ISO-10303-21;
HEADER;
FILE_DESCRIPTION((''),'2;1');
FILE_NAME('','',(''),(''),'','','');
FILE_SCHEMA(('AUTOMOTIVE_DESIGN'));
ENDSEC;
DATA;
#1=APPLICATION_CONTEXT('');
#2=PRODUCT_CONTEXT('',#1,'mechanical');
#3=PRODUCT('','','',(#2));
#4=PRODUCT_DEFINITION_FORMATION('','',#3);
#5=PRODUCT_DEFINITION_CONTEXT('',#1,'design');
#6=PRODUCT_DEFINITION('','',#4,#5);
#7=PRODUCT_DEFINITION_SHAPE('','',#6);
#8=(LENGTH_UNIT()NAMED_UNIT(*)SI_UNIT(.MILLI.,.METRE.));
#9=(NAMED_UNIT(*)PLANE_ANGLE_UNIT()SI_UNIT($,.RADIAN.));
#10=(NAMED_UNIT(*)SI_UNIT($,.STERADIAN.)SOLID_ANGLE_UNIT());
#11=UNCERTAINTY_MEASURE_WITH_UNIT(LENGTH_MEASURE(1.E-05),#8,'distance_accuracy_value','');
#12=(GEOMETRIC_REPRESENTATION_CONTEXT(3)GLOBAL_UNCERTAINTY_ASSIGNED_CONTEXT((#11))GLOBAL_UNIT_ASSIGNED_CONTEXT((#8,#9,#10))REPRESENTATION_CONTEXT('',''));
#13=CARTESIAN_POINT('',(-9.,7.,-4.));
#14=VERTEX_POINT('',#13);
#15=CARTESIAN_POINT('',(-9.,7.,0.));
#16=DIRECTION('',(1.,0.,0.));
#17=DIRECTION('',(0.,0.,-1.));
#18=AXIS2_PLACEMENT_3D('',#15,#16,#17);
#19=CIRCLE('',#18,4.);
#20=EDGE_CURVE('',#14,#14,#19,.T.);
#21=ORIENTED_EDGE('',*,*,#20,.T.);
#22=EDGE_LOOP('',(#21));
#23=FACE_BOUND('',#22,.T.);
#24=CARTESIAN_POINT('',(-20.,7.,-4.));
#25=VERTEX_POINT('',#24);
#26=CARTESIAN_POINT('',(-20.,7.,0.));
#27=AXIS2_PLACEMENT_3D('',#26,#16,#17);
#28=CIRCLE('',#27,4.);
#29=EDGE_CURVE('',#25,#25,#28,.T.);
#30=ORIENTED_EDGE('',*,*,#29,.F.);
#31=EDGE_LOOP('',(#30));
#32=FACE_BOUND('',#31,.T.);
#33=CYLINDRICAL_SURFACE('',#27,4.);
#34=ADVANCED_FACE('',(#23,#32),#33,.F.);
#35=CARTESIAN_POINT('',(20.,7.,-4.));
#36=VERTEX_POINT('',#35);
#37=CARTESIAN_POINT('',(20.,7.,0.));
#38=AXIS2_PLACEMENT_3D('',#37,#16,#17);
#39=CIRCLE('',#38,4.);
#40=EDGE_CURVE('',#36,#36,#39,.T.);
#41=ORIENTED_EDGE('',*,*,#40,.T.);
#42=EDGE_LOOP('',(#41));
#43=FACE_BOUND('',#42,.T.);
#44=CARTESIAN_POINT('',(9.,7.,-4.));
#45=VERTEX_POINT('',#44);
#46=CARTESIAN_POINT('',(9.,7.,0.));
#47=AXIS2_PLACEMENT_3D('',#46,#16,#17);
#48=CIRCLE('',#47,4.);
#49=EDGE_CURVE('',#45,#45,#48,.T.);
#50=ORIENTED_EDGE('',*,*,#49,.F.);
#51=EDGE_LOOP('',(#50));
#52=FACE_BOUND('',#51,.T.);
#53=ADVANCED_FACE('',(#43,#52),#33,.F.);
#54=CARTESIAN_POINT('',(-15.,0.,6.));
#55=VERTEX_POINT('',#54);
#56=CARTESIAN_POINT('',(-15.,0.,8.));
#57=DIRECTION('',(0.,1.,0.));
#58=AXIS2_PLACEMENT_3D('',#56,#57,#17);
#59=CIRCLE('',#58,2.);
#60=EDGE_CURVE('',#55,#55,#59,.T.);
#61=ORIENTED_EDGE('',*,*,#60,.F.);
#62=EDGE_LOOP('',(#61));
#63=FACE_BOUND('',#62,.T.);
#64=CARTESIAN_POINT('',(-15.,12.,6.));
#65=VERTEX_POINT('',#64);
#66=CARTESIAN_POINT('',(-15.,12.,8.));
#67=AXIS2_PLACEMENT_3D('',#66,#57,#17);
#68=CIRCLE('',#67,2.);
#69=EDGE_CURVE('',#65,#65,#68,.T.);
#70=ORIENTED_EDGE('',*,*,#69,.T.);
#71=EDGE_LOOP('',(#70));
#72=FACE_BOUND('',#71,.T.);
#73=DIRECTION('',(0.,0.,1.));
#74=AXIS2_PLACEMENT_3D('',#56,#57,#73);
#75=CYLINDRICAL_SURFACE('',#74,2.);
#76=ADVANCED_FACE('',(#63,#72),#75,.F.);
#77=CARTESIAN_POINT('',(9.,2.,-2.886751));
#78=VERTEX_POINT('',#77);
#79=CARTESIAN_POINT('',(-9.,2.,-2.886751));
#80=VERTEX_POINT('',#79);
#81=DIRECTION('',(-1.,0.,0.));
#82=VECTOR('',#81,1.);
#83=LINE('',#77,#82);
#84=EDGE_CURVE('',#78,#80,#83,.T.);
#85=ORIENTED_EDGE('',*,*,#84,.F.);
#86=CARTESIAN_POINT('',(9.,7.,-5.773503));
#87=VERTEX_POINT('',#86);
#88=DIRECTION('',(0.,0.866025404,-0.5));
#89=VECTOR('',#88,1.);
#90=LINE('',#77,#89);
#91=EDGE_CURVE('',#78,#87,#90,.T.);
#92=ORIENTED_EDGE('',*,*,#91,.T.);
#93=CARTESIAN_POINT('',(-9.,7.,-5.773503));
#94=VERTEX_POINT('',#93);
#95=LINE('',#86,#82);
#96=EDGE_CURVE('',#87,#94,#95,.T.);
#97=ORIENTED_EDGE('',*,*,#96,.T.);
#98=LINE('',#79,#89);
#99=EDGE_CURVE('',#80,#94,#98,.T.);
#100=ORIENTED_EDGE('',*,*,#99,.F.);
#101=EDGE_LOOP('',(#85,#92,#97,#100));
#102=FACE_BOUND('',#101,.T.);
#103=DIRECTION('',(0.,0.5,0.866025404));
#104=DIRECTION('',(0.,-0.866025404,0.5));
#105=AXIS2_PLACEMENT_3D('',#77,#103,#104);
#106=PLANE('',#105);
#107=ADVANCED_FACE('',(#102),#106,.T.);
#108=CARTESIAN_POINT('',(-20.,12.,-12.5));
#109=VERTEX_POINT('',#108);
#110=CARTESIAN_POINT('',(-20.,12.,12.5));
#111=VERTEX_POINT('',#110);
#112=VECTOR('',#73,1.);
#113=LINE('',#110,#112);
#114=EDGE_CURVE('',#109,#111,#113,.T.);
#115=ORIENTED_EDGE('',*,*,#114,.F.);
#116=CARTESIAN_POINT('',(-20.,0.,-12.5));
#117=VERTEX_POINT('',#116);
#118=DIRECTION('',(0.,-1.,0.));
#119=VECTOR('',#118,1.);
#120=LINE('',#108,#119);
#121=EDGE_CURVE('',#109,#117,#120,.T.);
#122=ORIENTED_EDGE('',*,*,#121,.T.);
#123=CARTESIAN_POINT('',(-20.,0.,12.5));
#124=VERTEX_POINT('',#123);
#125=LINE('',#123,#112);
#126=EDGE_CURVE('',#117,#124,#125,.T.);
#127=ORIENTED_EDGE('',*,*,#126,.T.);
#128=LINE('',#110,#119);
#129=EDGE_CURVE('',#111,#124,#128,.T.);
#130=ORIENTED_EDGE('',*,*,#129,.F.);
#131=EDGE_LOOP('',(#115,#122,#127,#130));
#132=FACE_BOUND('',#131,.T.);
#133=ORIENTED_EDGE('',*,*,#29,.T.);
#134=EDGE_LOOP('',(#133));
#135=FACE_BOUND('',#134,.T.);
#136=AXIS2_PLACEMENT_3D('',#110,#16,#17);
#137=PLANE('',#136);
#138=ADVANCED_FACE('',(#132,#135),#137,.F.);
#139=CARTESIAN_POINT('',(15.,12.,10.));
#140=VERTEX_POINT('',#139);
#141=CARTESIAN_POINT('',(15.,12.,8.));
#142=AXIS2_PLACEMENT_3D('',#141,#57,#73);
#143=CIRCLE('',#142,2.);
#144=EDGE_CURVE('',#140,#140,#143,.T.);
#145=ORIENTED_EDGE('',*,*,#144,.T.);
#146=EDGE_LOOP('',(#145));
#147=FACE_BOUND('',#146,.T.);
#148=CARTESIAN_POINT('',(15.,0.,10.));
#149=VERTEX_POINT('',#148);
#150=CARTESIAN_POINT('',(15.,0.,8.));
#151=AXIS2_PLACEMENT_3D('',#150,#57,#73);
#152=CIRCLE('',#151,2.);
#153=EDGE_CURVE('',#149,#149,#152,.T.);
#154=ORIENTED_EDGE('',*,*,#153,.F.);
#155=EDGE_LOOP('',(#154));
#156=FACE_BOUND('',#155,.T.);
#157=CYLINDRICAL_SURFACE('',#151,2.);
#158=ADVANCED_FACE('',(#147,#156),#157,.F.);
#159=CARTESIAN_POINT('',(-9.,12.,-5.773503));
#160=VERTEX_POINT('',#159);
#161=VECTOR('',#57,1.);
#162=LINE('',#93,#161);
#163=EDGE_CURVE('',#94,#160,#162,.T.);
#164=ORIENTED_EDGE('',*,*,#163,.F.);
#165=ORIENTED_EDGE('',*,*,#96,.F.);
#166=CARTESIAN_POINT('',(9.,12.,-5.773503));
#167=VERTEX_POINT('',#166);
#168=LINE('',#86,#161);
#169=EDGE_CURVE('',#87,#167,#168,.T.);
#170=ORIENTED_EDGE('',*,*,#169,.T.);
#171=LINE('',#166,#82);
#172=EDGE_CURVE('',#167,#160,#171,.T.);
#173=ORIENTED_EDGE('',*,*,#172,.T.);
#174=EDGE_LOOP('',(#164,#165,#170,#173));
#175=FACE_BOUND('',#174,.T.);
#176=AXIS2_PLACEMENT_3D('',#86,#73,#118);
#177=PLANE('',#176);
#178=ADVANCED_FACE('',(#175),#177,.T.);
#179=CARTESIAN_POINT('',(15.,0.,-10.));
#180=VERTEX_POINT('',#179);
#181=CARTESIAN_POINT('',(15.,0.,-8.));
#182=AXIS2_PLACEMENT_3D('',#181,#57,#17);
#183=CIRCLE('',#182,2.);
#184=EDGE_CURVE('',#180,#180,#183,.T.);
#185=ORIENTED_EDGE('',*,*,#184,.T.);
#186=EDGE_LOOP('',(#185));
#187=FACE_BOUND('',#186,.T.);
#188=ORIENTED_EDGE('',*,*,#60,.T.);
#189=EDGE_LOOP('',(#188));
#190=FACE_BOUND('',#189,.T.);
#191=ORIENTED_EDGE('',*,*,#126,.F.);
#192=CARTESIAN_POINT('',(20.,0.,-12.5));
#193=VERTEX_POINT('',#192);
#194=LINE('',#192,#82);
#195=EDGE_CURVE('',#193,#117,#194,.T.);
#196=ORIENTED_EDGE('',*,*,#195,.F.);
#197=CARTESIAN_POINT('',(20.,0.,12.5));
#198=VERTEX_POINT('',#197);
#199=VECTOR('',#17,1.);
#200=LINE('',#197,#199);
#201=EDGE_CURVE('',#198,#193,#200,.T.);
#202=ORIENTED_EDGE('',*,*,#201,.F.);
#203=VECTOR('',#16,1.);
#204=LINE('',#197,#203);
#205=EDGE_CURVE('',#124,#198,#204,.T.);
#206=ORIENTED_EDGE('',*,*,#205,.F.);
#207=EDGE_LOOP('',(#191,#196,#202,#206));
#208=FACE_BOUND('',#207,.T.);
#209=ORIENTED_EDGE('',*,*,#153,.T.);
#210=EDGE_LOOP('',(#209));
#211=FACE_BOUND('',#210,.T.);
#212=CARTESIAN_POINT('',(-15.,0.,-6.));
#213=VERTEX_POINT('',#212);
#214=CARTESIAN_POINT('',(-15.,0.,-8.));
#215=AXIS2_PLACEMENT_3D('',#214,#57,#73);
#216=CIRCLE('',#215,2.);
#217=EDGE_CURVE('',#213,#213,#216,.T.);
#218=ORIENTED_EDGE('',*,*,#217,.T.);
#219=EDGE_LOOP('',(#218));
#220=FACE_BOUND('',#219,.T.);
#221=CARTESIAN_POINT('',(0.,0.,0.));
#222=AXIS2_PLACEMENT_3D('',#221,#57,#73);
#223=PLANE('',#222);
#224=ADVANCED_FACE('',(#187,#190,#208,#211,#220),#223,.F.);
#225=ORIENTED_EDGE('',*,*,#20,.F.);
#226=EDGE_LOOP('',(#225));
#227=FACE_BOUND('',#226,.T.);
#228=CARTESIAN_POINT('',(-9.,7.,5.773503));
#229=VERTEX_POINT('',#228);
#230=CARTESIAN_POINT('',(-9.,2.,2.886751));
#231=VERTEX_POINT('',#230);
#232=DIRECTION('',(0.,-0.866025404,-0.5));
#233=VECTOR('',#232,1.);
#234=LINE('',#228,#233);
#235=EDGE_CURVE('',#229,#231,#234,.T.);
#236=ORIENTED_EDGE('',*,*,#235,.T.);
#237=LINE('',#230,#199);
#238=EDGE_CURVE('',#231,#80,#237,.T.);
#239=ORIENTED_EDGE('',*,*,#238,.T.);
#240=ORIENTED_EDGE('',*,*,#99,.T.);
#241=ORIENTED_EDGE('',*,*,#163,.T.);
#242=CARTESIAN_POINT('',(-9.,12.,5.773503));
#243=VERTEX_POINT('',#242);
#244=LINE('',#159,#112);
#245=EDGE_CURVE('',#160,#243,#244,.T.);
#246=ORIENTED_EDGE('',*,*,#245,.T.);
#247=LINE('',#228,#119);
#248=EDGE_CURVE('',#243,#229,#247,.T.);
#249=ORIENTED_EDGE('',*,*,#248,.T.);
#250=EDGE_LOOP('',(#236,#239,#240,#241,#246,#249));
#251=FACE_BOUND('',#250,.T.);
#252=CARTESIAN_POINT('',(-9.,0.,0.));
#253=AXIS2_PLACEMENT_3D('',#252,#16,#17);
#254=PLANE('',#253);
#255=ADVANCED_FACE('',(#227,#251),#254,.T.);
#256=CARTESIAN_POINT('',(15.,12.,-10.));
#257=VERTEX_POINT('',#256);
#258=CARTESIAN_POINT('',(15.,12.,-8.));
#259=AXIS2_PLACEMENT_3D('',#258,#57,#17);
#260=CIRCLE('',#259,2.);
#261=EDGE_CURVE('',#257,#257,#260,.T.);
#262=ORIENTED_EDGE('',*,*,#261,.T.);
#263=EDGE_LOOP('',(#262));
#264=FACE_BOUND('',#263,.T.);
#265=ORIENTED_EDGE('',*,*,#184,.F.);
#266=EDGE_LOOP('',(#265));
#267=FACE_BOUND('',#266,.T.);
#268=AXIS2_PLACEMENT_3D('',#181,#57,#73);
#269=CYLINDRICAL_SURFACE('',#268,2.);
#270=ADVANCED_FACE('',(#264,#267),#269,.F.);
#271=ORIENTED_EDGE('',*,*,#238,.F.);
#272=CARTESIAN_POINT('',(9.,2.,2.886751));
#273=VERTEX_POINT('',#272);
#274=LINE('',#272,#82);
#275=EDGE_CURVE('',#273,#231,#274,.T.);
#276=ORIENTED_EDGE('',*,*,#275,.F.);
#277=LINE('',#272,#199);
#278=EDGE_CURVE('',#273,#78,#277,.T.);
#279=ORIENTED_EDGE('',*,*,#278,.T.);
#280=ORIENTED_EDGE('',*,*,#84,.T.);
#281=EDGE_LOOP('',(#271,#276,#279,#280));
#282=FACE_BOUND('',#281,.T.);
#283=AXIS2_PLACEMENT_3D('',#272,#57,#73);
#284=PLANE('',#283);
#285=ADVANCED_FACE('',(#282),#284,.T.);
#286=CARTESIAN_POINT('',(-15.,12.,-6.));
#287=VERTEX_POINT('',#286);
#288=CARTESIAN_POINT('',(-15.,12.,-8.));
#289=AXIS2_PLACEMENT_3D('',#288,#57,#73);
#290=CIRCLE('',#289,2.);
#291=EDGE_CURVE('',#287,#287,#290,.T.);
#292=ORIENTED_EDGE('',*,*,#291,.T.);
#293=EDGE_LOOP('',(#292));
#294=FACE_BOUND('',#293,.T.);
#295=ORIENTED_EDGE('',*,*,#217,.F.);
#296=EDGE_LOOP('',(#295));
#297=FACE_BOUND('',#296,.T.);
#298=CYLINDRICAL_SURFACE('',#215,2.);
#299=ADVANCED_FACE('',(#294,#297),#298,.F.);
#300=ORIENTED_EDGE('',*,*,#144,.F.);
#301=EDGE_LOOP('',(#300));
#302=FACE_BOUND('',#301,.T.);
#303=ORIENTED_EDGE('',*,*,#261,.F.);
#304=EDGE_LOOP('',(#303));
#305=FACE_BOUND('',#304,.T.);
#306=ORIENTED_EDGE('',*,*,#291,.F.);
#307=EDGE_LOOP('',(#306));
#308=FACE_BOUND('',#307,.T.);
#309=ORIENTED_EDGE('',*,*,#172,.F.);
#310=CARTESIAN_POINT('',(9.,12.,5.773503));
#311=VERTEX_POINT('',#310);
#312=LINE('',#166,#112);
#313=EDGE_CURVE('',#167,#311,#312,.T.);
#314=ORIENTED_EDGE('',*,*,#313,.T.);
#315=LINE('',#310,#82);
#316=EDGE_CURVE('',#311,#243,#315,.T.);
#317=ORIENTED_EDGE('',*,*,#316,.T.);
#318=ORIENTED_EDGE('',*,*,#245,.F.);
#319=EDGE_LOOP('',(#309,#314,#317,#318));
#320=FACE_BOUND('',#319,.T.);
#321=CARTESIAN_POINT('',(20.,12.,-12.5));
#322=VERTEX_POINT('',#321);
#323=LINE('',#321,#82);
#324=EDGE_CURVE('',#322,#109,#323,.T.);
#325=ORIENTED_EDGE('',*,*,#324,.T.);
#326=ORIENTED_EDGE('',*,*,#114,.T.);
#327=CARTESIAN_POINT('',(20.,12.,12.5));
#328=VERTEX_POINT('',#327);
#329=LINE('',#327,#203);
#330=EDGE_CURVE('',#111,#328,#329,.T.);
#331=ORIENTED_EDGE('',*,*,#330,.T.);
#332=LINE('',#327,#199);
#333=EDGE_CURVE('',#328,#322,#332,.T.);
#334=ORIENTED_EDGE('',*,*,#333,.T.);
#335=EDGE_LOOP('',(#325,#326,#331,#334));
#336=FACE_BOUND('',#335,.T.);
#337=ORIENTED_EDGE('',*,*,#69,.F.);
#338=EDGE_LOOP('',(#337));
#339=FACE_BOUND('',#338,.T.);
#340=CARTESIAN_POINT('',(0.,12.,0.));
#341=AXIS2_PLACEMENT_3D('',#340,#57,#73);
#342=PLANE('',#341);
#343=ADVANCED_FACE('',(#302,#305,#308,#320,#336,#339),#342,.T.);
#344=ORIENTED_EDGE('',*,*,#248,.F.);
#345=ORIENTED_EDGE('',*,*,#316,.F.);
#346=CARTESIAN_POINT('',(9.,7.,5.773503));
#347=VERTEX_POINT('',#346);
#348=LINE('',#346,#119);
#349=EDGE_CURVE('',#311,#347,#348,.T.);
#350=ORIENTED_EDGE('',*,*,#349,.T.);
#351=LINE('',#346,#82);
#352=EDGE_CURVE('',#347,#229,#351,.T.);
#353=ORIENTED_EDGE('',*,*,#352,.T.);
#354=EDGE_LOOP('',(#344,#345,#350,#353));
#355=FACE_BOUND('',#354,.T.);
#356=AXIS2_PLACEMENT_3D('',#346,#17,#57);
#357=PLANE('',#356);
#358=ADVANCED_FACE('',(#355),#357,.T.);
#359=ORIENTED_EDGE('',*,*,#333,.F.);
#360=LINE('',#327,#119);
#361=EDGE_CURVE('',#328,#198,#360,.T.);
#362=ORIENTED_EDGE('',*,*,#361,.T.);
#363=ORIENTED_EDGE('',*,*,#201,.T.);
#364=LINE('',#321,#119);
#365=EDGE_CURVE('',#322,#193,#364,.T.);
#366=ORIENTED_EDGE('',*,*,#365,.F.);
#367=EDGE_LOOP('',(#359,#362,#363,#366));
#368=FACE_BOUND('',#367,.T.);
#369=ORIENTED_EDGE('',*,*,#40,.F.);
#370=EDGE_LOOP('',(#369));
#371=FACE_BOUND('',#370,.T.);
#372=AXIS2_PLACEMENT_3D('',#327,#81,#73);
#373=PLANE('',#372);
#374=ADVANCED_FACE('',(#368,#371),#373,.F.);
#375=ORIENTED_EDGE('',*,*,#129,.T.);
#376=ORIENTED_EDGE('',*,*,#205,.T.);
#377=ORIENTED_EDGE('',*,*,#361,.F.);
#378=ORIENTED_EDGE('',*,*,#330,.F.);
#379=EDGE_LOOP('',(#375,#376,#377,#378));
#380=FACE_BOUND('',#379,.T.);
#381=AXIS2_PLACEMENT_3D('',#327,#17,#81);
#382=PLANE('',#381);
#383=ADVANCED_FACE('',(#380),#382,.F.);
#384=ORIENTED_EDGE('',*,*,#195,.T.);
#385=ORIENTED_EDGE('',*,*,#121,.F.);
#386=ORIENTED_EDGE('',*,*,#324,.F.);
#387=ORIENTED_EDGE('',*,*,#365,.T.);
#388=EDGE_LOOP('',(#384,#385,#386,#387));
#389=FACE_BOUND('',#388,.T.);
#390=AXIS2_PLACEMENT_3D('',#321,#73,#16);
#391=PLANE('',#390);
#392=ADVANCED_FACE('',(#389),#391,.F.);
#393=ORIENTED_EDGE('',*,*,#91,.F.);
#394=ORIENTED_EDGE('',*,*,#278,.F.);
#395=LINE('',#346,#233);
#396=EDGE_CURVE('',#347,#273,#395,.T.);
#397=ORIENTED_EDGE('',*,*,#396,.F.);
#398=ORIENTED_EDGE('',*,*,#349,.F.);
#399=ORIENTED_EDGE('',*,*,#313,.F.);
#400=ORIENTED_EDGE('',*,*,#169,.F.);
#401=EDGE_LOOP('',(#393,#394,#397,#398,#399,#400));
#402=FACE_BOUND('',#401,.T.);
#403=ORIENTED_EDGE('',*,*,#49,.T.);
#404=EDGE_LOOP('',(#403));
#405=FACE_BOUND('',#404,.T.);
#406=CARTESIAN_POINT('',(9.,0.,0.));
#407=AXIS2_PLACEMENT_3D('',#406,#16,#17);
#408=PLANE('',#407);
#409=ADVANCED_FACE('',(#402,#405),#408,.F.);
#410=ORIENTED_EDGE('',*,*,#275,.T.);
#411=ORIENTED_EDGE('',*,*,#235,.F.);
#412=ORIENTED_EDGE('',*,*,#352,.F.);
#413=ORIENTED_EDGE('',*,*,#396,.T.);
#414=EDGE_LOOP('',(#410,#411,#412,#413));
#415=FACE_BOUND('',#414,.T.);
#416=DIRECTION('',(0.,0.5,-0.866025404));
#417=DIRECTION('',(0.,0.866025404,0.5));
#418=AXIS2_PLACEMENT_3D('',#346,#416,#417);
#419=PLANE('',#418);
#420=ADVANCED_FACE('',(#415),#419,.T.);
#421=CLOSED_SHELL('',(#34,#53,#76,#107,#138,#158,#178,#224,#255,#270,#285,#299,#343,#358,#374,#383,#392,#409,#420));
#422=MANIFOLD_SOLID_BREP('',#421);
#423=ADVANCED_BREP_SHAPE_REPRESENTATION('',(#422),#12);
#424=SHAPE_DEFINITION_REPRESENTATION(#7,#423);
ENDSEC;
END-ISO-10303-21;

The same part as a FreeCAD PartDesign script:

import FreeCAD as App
import Part
import Sketcher
from FreeCAD import Vector
Q = App.Units.Quantity

doc = App.newDocument("Part")
body = doc.addObject("PartDesign::Body", "Body")

# Sketch on XZ plane
sketch1 = doc.addObject("Sketcher::SketchObject", "Sketch")
body.addObject(sketch1)
sketch1.AttachmentSupport = (doc.XZ_Plane, [""])
sketch1.MapMode = "FlatFace"
sketch1.addGeometry([
    Part.LineSegment(Vector(-20, -12, 0), Vector(-20, 12, 0)),
    Part.LineSegment(Vector(-20, 12, 0), Vector(20, 12, 0)),
    Part.LineSegment(Vector(20, 12, 0), Vector(20, -12, 0)),
    Part.LineSegment(Vector(20, -12, 0), Vector(-20, -12, 0)),
], False)
sketch1.addConstraint([
    Sketcher.Constraint("Coincident", 0, 2, 1, 1),
    Sketcher.Constraint("Coincident", 1, 2, 2, 1),
    Sketcher.Constraint("Coincident", 2, 2, 3, 1),
    Sketcher.Constraint("Coincident", 3, 2, 0, 1),
    Sketcher.Constraint("Vertical", 0),
    Sketcher.Constraint("Horizontal", 1),
    Sketcher.Constraint("Vertical", 2),
    Sketcher.Constraint("Horizontal", 3),
    Sketcher.Constraint("Symmetric", 0, 2, 2, 2, -1, 1),
    Sketcher.Constraint("DistanceX", 1, 1, 1, 2, 40.0),
    Sketcher.Constraint("DistanceY", 0, 1, 0, 2, 25.0),
])
pad1 = doc.addObject("PartDesign::Pad", "Pad")
body.addObject(pad1)
pad1.Profile = sketch1
pad1.Length = 12
pad1.Reversed = True

# Sketch on YZ plane
sketch2 = doc.addObject("Sketcher::SketchObject", "Sketch001")
body.addObject(sketch2)
sketch2.AttachmentSupport = (doc.YZ_Plane, [""])
sketch2.MapMode = "FlatFace"
sketch2.addGeometry([
    Part.LineSegment(Vector(2, 3, 0), Vector(2, -3, 0)),  # 0
    Part.LineSegment(Vector(2, -3, 0), Vector(7, -6, 0)),  # 1
    Part.LineSegment(Vector(7, -6, 0), Vector(12, -6, 0)),  # 2
    Part.LineSegment(Vector(12, -6, 0), Vector(12, 6, 0)),  # 3
    Part.LineSegment(Vector(12, 6, 0), Vector(7, 6, 0)),  # 4
    Part.LineSegment(Vector(7, 6, 0), Vector(2, 3, 0)),  # 5
], False)
sketch2.addConstraint([
    Sketcher.Constraint("Coincident", 0, 2, 1, 1),
    Sketcher.Constraint("Coincident", 1, 2, 2, 1),
    Sketcher.Constraint("Coincident", 2, 2, 3, 1),
    Sketcher.Constraint("Coincident", 3, 2, 4, 1),
    Sketcher.Constraint("Coincident", 4, 2, 5, 1),
    Sketcher.Constraint("Coincident", 5, 2, 0, 1),
    Sketcher.Constraint("Vertical", 0),
    Sketcher.Constraint("Horizontal", 2),
    Sketcher.Constraint("Vertical", 3),
    Sketcher.Constraint("Horizontal", 4),
    Sketcher.Constraint("Symmetric", 1, 2, 4, 2, -1),
    Sketcher.Constraint("Equal", 1, 5),
    Sketcher.Constraint("DistanceX", 2, 1, 2, 2, 5.0),
    Sketcher.Constraint("Angle", 1, Q("-30 deg")),
    Sketcher.Constraint("DistanceX", -1, 1, 0, 2, 2.0),
    Sketcher.Constraint("DistanceX", -1, 1, 1, 2, 7.0),
    Sketcher.Constraint("DistanceY", 0, 2, 0, 1, 5.773503),
])
pocket1 = doc.addObject("PartDesign::Pocket", "Pocket")
body.addObject(pocket1)
pocket1.Profile = sketch2
pocket1.Type = "TwoLengths"
pocket1.Length = 9
pocket1.Length2 = 9
pocket1.Reversed = True

# Sketch on YZ plane
sketch3 = doc.addObject("Sketcher::SketchObject", "Sketch002")
body.addObject(sketch3)
sketch3.AttachmentSupport = (doc.YZ_Plane, [""])
sketch3.MapMode = "FlatFace"
sketch3.addGeometry(Part.Circle(Vector(7, 0, 0), Vector(0, 0, 1), 4), False)
sketch3.addConstraint([
    Sketcher.Constraint("PointOnObject", 0, 3, -1),
    Sketcher.Constraint("Diameter", 0, 8.0),
    Sketcher.Constraint("DistanceX", -1, 1, 0, 3, 7.0),
])
pocket2 = doc.addObject("PartDesign::Pocket", "Pocket001")
body.addObject(pocket2)
pocket2.Profile = sketch3
pocket2.Type = "ThroughAll"
pocket2.Midplane = True

# Sketch on XZ plane
sketch4 = doc.addObject("Sketcher::SketchObject", "Sketch003")
body.addObject(sketch4)
sketch4.AttachmentSupport = (doc.XZ_Plane, [""])
sketch4.MapMode = "FlatFace"
sketch4.AttachmentOffset = App.Placement(Vector(0, 0, -12), App.Rotation())
sketch4.addGeometry([
    Part.Circle(Vector(-15, -8, 0), Vector(0, 0, 1), 2),
    Part.Circle(Vector(15, -8, 0), Vector(0, 0, 1), 2),
    Part.Circle(Vector(15, 8, 0), Vector(0, 0, 1), 2),
    Part.Circle(Vector(-15, 8, 0), Vector(0, 0, 1), 2),
], False)
sketch4.addConstraint([
    Sketcher.Constraint("Equal", 0, 1),
    Sketcher.Constraint("Equal", 1, 2),
    Sketcher.Constraint("Equal", 2, 3),
    Sketcher.Constraint("Symmetric", 0, 3, 2, 3, -1, 1),
    Sketcher.Constraint("Symmetric", 1, 3, 3, 3, -1, 1),
    Sketcher.Constraint("Symmetric", 0, 3, 1, 3, -2),
    Sketcher.Constraint("Diameter", 0, 4.0),
    Sketcher.Constraint("DistanceX", 0, 3, -1, 1, 15.0),
    Sketcher.Constraint("DistanceY", 0, 3, -1, 1, 8.0),
])
pocket3 = doc.addObject("PartDesign::Pocket", "Pocket002")
body.addObject(pocket3)
pocket3.Profile = sketch4
pocket3.Type = "ThroughAll"
pocket3.Midplane = True

doc.recompute()
